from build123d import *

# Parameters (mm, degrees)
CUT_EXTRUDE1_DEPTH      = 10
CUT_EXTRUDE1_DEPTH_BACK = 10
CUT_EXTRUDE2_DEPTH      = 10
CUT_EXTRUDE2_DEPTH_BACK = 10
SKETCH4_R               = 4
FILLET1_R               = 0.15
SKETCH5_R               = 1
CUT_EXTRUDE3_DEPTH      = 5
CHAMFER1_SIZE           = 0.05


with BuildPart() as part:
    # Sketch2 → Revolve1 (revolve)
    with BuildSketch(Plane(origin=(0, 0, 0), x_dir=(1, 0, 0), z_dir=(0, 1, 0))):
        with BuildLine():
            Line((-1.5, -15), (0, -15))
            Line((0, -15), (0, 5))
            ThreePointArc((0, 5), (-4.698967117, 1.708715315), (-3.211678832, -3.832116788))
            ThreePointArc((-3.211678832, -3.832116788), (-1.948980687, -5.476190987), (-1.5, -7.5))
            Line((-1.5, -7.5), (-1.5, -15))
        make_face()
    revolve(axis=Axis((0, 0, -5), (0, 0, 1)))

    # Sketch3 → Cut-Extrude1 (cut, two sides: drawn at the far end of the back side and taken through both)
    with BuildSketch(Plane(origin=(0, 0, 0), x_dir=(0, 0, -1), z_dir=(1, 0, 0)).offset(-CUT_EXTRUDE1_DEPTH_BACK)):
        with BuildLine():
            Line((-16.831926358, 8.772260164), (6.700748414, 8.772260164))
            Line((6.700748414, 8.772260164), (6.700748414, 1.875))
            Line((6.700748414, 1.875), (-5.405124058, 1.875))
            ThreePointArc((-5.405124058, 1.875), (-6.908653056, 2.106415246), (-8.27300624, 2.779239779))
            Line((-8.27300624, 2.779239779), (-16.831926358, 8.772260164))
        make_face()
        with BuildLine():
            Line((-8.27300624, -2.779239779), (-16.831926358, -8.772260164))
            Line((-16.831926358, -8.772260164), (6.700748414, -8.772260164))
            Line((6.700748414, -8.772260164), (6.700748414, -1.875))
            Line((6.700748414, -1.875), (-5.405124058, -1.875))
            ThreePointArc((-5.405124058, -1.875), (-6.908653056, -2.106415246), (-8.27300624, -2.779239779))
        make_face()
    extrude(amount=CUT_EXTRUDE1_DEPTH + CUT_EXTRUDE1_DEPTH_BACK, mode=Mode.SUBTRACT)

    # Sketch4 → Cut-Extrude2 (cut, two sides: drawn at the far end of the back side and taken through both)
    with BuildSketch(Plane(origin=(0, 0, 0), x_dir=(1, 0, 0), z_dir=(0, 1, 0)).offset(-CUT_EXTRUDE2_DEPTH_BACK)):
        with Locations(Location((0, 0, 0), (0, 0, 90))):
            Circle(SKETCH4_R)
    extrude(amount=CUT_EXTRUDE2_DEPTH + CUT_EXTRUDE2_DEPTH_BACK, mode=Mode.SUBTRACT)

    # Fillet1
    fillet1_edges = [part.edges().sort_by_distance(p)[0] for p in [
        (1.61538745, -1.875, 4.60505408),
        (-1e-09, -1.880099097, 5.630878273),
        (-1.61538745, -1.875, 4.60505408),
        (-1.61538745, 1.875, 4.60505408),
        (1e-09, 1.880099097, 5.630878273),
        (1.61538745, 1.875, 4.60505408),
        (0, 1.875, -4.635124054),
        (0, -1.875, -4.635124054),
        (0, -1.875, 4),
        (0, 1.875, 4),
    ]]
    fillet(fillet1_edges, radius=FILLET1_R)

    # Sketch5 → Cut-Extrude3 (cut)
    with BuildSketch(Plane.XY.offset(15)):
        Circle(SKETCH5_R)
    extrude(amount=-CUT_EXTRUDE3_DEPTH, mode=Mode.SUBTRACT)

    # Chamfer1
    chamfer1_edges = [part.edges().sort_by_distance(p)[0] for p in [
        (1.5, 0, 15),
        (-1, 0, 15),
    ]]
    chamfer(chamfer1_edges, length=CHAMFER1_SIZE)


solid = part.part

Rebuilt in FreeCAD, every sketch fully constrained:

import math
import FreeCAD as App
import Part
import Sketcher
from FreeCAD import Vector
Q = App.Units.Quantity


def edges_at(feature, points):
    """Names of the edges that pass closest to the given points."""
    edges = feature.Shape.Edges
    near = lambda p: min(range(len(edges)), key=lambda i: edges[i].distToShape(Part.Vertex(*p))[0])
    return sorted({f"Edge{near(p) + 1}" for p in points})

doc = App.newDocument("Part")
body = doc.addObject("PartDesign::Body", "Body")

# Sketch on XZ plane
sketch1 = doc.addObject("Sketcher::SketchObject", "Sketch")
body.addObject(sketch1)
sketch1.AttachmentSupport = (doc.XZ_Plane, [""])
sketch1.MapMode = "FlatFace"
sketch1.addGeometry([
    Part.LineSegment(Vector(-1.5, 15, 0), Vector(0, 15, 0)),  # 0
    Part.LineSegment(Vector(0, 15, 0), Vector(0, -5, 0)),  # 1
    Part.ArcOfCircle(Part.Circle(Vector(0, 0, 0), Vector(0, 0, 1), 5), math.radians(130), math.radians(270)),  # 2
    Part.ArcOfCircle(Part.Circle(Vector(-6.3, 7.5, 0), Vector(0, 0, 1), 4.8), math.radians(-50), math.radians(0)),  # 3
    Part.LineSegment(Vector(-1.5, 7.5, 0), Vector(-1.5, 15, 0)),  # 4
], False)
sketch1.addConstraint([
    Sketcher.Constraint("Coincident", 0, 2, 1, 1),
    Sketcher.Constraint("Coincident", 1, 2, 2, 2),
    Sketcher.Constraint("Tangent", 2, 1, 3, 1),
    Sketcher.Constraint("Tangent", 3, 2, 4, 1),
    Sketcher.Constraint("Coincident", 4, 2, 0, 1),
    Sketcher.Constraint("Horizontal", 0),
    Sketcher.Constraint("Vertical", 1),
    Sketcher.Constraint("Vertical", 4),
    Sketcher.Constraint("Coincident", 2, 3, -1, 1),
    Sketcher.Constraint("PointOnObject", 0, 2, -2),
    Sketcher.Constraint("Radius", 2, 5.0),
    Sketcher.Constraint("DistanceY", 1, 2, 1, 1, 20.0),
    Sketcher.Constraint("DistanceX", 0, 1, 0, 2, 1.5),
    Sketcher.Constraint("DistanceY", 4, 1, 4, 2, 7.5),
])
revolution = doc.addObject("PartDesign::Revolution", "Revolution")
body.addObject(revolution)
revolution.Profile = sketch1
revolution.ReferenceAxis = (sketch1, ["V_Axis"])
revolution.Angle = 360

# Sketch on YZ plane
sketch2 = doc.addObject("Sketcher::SketchObject", "Sketch001")
body.addObject(sketch2)
sketch2.AttachmentSupport = (doc.YZ_Plane, [""])
sketch2.MapMode = "FlatFace"
sketch2.addGeometry([
    Part.LineSegment(Vector(8.8, -6.7, 0), Vector(8.8, 16.8, 0)),  # 0
    Part.LineSegment(Vector(8.8, 16.8, 0), Vector(2.8, 8.3, 0)),  # 1
    Part.ArcOfCircle(Part.Circle(Vector(6.9, 5.4, 0), Vector(0, 0, 1), 5), math.radians(145), math.radians(180)),  # 2
    Part.LineSegment(Vector(1.9, 5.4, 0), Vector(1.9, -6.7, 0)),  # 3
    Part.LineSegment(Vector(1.9, -6.7, 0), Vector(8.8, -6.7, 0)),  # 4
    Part.LineSegment(Vector(-2.8, 8.3, 0), Vector(-8.8, 16.8, 0)),  # 5
    Part.LineSegment(Vector(-8.8, 16.8, 0), Vector(-8.8, -6.7, 0)),  # 6
    Part.LineSegment(Vector(-8.8, -6.7, 0), Vector(-1.9, -6.7, 0)),  # 7
    Part.LineSegment(Vector(-1.9, -6.7, 0), Vector(-1.9, 5.4, 0)),  # 8
    Part.ArcOfCircle(Part.Circle(Vector(-6.9, 5.4, 0), Vector(0, 0, 1), 5), math.radians(0), math.radians(35)),  # 9
], False)
sketch2.addConstraint([
    Sketcher.Constraint("Coincident", 0, 2, 1, 1),
    Sketcher.Constraint("Tangent", 1, 2, 2, 1),
    Sketcher.Constraint("Tangent", 2, 2, 3, 1),
    Sketcher.Constraint("Coincident", 3, 2, 4, 1),
    Sketcher.Constraint("Coincident", 4, 2, 0, 1),
    Sketcher.Constraint("Coincident", 5, 2, 6, 1),
    Sketcher.Constraint("Coincident", 6, 2, 7, 1),
    Sketcher.Constraint("Coincident", 7, 2, 8, 1),
    Sketcher.Constraint("Tangent", 8, 2, 9, 1),
    Sketcher.Constraint("Tangent", 9, 2, 5, 1),
    Sketcher.Constraint("Vertical", 0),
    Sketcher.Constraint("Vertical", 3),
    Sketcher.Constraint("Horizontal", 4),
    Sketcher.Constraint("Vertical", 6),
    Sketcher.Constraint("Horizontal", 7),
    Sketcher.Constraint("Vertical", 8),
    Sketcher.Constraint("Equal", 2, 9),
    Sketcher.Constraint("Symmetric", 2, 3, 9, 3, -2),
    Sketcher.Constraint("Symmetric", 0, 2, 5, 2, -2),
    Sketcher.Constraint("Horizontal", 4, 2, 6, 2),
    Sketcher.Constraint("Radius", 2, 5.0),
    Sketcher.Constraint("Angle", 1, Q("-125 deg")),
    Sketcher.Constraint("DistanceX", 9, 3, 2, 3, 13.75),
    Sketcher.Constraint("DistanceX", 4, 1, 4, 2, 6.89726),
    Sketcher.Constraint("DistanceY", 0, 1, 0, 2, 23.532675),
    Sketcher.Constraint("DistanceY", 3, 2, -1, 1, 6.700748),
])
pocket1 = doc.addObject("PartDesign::Pocket", "Pocket")
body.addObject(pocket1)
pocket1.Profile = sketch2
pocket1.Type = "ThroughAll"
pocket1.Midplane = True

# Sketch on XZ plane
sketch3 = doc.addObject("Sketcher::SketchObject", "Sketch002")
body.addObject(sketch3)
sketch3.AttachmentSupport = (doc.XZ_Plane, [""])
sketch3.MapMode = "FlatFace"
sketch3.addGeometry(Part.Circle(Vector(0, 0, 0), Vector(0, 0, 1), 4), False)
sketch3.addConstraint([
    Sketcher.Constraint("Coincident", 0, 3, -1, 1),
    Sketcher.Constraint("Diameter", 0, 8.0),
])
pocket2 = doc.addObject("PartDesign::Pocket", "Pocket001")
body.addObject(pocket2)
pocket2.Profile = sketch3
pocket2.Type = "ThroughAll"
pocket2.Midplane = True
doc.recompute()

fillet = doc.addObject("PartDesign::Fillet", "Fillet")
body.addObject(fillet)
fillet.Base = (pocket2, edges_at(pocket2, [
    (1.615, -1.875, 4.605),
    (0, -1.88, 5.631),
    (-1.615, -1.875, 4.605),
    (-1.615, 1.875, 4.605),
    (0, 1.88, 5.631),
    (1.615, 1.875, 4.605),
    (0, 1.875, -4.635),
    (0, -1.875, -4.635),
    (0, -1.875, 4),
    (0, 1.875, 4),
]))
fillet.Radius = 0.15

# Sketch on XY plane
sketch4 = doc.addObject("Sketcher::SketchObject", "Sketch003")
body.addObject(sketch4)
sketch4.AttachmentSupport = (doc.XY_Plane, [""])
sketch4.MapMode = "FlatFace"
sketch4.AttachmentOffset = App.Placement(Vector(0, 0, 15), App.Rotation())
sketch4.addGeometry(Part.Circle(Vector(0, 0, 0), Vector(0, 0, 1), 1), False)
sketch4.addConstraint([
    Sketcher.Constraint("Coincident", 0, 3, -1, 1),
    Sketcher.Constraint("Diameter", 0, 2.0),
])
pocket3 = doc.addObject("PartDesign::Pocket", "Pocket002")
body.addObject(pocket3)
pocket3.Profile = sketch4
pocket3.Length = 5
doc.recompute()

chamfer = doc.addObject("PartDesign::Chamfer", "Chamfer")
body.addObject(chamfer)
chamfer.Base = (pocket3, edges_at(pocket3, [(1.5, 0, 15), (-1, 0, 15)]))
chamfer.Size = 0.05

doc.recompute()
